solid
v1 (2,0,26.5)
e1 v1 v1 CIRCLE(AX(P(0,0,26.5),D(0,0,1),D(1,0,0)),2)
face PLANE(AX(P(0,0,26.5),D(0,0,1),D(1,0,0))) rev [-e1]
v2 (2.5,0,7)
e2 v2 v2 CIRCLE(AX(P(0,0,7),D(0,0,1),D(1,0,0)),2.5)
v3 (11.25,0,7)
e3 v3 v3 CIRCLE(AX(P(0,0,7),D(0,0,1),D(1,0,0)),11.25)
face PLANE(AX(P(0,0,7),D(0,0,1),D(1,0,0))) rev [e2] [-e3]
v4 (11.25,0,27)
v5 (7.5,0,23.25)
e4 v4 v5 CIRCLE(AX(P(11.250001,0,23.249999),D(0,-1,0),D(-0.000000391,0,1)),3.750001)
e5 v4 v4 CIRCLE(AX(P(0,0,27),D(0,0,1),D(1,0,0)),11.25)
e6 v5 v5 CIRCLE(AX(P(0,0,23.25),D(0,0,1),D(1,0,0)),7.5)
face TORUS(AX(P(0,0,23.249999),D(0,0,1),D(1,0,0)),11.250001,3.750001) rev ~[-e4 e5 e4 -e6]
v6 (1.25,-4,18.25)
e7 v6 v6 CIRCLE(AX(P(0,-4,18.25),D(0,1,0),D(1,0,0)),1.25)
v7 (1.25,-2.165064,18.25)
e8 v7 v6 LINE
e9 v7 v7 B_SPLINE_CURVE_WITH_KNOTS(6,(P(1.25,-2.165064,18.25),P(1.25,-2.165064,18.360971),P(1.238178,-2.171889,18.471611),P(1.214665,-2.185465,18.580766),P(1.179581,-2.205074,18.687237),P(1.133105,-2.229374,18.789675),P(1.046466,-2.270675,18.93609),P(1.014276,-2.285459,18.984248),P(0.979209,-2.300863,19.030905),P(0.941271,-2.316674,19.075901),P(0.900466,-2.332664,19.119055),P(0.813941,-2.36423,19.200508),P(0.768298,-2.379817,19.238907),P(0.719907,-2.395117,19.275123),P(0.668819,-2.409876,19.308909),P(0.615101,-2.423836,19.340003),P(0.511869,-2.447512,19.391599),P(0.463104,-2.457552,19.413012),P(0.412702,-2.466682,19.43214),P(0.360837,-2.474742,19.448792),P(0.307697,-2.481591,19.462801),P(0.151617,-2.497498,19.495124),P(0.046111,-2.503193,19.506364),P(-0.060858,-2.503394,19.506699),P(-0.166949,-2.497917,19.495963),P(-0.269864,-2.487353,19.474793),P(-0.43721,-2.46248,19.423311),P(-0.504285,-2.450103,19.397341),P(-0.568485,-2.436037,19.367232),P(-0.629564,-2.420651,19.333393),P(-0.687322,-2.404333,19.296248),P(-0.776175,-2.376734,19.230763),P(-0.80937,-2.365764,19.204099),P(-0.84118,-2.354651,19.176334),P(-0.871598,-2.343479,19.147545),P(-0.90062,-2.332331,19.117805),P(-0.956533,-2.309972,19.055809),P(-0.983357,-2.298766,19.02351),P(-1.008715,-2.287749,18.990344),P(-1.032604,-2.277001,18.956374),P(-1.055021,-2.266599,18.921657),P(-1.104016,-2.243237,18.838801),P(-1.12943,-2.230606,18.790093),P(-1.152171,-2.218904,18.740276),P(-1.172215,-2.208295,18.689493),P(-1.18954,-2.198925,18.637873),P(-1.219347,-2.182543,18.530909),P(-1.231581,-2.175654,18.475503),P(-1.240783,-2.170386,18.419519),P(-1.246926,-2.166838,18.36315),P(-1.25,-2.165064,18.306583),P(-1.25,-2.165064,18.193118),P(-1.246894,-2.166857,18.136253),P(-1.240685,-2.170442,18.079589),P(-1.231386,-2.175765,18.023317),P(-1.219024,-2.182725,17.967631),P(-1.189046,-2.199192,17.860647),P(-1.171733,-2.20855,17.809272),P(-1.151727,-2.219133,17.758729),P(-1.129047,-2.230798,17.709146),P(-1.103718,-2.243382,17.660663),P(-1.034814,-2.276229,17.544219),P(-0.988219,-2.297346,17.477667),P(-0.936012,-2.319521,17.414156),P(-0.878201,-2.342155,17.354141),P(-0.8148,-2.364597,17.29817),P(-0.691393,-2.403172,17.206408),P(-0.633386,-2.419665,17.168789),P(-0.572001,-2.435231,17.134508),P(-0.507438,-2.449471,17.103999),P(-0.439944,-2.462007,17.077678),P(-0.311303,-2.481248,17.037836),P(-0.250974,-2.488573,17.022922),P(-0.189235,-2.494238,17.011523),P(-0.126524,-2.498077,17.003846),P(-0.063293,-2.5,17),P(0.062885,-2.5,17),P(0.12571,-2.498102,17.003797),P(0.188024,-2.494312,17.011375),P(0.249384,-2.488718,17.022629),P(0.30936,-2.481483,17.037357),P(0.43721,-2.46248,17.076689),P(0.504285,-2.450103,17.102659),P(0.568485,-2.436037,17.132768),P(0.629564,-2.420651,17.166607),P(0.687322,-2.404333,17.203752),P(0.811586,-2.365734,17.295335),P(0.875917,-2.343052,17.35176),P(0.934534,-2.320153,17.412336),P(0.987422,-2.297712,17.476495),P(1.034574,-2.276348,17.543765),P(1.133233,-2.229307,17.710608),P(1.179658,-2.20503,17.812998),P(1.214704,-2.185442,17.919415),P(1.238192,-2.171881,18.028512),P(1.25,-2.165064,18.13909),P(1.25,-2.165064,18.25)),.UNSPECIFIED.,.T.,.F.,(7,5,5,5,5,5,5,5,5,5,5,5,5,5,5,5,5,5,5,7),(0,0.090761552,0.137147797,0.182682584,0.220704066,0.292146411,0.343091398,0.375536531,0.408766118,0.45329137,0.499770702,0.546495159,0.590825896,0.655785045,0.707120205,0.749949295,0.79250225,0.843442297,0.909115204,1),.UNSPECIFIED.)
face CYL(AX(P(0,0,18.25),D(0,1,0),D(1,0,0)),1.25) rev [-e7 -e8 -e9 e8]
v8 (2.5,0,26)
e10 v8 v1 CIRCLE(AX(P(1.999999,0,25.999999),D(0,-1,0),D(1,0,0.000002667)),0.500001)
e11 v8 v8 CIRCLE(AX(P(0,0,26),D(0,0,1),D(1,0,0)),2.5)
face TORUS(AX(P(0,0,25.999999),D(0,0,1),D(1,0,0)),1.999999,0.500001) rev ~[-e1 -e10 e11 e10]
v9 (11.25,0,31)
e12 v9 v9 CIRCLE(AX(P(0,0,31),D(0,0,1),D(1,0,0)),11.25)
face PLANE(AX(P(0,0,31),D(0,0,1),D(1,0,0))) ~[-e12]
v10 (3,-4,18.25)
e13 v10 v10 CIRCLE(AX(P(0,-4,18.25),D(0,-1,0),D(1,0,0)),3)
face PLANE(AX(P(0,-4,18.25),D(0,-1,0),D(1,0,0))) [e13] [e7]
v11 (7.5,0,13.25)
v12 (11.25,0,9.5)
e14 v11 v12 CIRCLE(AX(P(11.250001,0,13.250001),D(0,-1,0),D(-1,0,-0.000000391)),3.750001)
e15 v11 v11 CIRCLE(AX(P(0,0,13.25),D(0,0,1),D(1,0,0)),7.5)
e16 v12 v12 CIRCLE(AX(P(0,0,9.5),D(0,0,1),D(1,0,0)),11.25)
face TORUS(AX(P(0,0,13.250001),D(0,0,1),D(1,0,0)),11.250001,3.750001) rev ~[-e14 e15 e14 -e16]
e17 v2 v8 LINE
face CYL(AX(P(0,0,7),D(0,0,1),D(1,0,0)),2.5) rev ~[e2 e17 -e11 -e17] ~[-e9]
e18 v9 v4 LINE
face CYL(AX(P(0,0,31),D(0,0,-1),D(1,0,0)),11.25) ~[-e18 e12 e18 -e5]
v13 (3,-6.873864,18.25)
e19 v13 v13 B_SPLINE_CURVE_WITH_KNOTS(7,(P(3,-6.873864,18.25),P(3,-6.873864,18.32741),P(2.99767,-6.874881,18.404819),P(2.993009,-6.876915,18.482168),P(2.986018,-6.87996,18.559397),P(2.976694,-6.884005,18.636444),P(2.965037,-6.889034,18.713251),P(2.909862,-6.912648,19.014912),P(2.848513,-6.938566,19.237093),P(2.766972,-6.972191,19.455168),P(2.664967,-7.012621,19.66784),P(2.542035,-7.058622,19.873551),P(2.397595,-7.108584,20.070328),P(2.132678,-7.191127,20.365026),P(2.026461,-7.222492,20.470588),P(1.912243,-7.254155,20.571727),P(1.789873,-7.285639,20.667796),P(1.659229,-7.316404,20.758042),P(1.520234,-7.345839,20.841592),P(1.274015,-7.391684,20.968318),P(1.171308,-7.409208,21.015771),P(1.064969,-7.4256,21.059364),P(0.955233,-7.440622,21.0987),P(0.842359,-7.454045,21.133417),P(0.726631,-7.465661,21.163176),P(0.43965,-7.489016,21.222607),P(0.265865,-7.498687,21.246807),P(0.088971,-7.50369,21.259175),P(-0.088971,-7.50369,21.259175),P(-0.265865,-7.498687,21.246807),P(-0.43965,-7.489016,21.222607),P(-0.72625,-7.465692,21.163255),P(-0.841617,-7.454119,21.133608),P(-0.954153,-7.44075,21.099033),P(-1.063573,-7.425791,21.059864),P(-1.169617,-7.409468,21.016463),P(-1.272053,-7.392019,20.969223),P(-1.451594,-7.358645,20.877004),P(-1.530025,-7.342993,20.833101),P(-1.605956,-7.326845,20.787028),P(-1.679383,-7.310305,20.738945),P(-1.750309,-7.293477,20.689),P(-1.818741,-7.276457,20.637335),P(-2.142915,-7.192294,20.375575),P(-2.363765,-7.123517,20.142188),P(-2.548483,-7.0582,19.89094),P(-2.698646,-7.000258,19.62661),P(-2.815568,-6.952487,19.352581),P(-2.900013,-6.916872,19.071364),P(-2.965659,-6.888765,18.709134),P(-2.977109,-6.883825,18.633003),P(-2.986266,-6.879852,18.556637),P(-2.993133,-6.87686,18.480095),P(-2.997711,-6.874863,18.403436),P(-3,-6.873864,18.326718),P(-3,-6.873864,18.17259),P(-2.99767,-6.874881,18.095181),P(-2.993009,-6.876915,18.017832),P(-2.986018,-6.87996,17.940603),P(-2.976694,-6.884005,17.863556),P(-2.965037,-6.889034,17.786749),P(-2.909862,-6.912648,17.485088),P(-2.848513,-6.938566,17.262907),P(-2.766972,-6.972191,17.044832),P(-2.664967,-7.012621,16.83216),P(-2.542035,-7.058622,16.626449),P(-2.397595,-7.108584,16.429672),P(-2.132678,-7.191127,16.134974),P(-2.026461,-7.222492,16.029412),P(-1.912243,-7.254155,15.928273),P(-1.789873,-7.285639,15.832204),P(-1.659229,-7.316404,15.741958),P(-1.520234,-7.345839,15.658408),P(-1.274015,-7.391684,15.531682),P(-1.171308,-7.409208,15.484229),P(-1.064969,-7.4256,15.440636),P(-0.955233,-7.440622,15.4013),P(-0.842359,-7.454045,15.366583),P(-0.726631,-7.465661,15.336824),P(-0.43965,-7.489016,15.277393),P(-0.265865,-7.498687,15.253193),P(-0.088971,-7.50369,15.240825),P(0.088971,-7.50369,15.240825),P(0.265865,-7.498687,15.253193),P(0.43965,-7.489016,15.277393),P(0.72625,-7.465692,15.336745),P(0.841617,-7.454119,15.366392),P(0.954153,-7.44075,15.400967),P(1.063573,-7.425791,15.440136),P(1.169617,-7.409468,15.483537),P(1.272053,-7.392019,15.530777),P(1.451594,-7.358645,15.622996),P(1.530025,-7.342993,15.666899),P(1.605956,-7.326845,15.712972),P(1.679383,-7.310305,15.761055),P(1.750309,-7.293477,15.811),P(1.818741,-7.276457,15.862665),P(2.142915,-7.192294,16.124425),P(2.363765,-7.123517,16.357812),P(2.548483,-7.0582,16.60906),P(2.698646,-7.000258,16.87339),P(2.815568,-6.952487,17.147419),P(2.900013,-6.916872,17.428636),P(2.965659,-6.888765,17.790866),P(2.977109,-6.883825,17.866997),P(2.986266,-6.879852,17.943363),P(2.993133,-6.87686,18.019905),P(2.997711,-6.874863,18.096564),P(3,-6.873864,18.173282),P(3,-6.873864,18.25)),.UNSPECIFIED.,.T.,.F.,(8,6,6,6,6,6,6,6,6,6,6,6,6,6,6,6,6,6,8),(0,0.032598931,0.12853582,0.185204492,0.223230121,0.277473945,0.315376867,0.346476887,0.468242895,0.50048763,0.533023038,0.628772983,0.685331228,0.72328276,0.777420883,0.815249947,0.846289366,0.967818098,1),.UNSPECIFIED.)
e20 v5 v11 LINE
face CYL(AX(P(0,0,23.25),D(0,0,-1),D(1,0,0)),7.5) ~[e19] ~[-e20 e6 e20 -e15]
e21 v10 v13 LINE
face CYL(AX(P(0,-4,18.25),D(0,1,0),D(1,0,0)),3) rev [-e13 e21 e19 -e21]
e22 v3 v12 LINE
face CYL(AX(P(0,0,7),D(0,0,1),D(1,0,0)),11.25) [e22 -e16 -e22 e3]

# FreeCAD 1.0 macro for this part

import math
import FreeCAD as App
import Part
import Sketcher

doc = App.newDocument("Part")
body = doc.addObject("PartDesign::Body", "Body")

# Sketch on XZ plane
sketch1 = body.newObject("Sketcher::SketchObject", "Sketch")
sketch1.AttachmentSupport = (doc.getObject("XZ_Plane"), [""])
sketch1.MapMode = "FlatFace"
sketch1.AttachmentOffset = App.Placement(App.Vector(0, 0, 4), App.Rotation())
sketch1.addGeometry(Part.Circle(App.Vector(0, 18.2, 0), App.Vector(0, 0, 1), 3), False)
sketch1.addConstraint([
    Sketcher.Constraint("PointOnObject", 0, 3, -2),
    Sketcher.Constraint("Diameter", 0, 6.0),
    Sketcher.Constraint("DistanceY", -1, 1, 0, 3, 18.25),
])
pad1 = body.newObject("PartDesign::Pad", "Pad")
pad1.Profile = sketch1
pad1.Length = 3.5
body2 = doc.addObject("PartDesign::Body", "Body001")

# Sketch on XZ plane
sketch2 = body2.newObject("Sketcher::SketchObject", "Sketch001")
sketch2.AttachmentSupport = (doc.getObject("XZ_Plane001"), [""])
sketch2.MapMode = "FlatFace"
sketch2.addGeometry(Part.Circle(App.Vector(0, 18.2, 0), App.Vector(0, 0, 1), 1.2), False)
sketch2.addConstraint([
    Sketcher.Constraint("PointOnObject", 0, 3, -2),
    Sketcher.Constraint("Diameter", 0, 2.5),
    Sketcher.Constraint("DistanceY", -1, 1, 0, 3, 18.25),
])
pad2 = body2.newObject("PartDesign::Pad", "Pad001")
pad2.Profile = sketch2
pad2.Length = 10
doc.recompute()

boolean = body2.newObject("PartDesign::Boolean", "Boolean")
boolean.Type = "Fuse"
boolean.addObjects([body])
body3 = doc.addObject("PartDesign::Body", "Body002")

# Sketch on XZ plane
sketch3 = body3.newObject("Sketcher::SketchObject", "Sketch002")
sketch3.AttachmentSupport = (doc.getObject("XZ_Plane002"), [""])
sketch3.MapMode = "FlatFace"
sketch3.addGeometry([
    Part.LineSegment(App.Vector(2.5, 26, 0), App.Vector(2.5, 7, 0)),  # 0
    Part.LineSegment(App.Vector(2.5, 7, 0), App.Vector(11.2, 7, 0)),  # 1
    Part.LineSegment(App.Vector(11.2, 7, 0), App.Vector(11.2, 9.5, 0)),  # 2
    Part.ArcOfCircle(Part.Circle(App.Vector(11.3, 13.3, 0), App.Vector(0, 0, 1), 3.8), math.radians(-180), math.radians(-90)),  # 3
    Part.LineSegment(App.Vector(7.5, 13.2, 0), App.Vector(7.5, 23.2, 0)),  # 4
    Part.ArcOfCircle(Part.Circle(App.Vector(11.3, 23.2, 0), App.Vector(0, 0, 1), 3.8), math.radians(90), math.radians(180)),  # 5
    Part.LineSegment(App.Vector(11.2, 27, 0), App.Vector(11.2, 31, 0)),  # 6
    Part.LineSegment(App.Vector(11.2, 31, 0), App.Vector(0, 31, 0)),  # 7
    Part.LineSegment(App.Vector(0, 31, 0), App.Vector(0, 26.5, 0)),  # 8
    Part.LineSegment(App.Vector(0, 26.5, 0), App.Vector(2, 26.5, 0)),  # 9
    Part.ArcOfCircle(Part.Circle(App.Vector(2, 26, 0), App.Vector(0, 0, 1), 0.5), math.radians(0), math.radians(90)),  # 10
], False)
sketch3.addConstraint([
    Sketcher.Constraint("Coincident", 0, 2, 1, 1),
    Sketcher.Constraint("Coincident", 1, 2, 2, 1),
    Sketcher.Constraint("Coincident", 2, 2, 3, 2),
    Sketcher.Constraint("Tangent", 3, 1, 4, 1),
    Sketcher.Constraint("Tangent", 4, 2, 5, 2),
    Sketcher.Constraint("Coincident", 5, 1, 6, 1),
    Sketcher.Constraint("Coincident", 6, 2, 7, 1),
    Sketcher.Constraint("Coincident", 7, 2, 8, 1),
    Sketcher.Constraint("Coincident", 8, 2, 9, 1),
    Sketcher.Constraint("Coincident", 9, 2, 10, 2),
    Sketcher.Constraint("Coincident", 10, 1, 0, 1),
    Sketcher.Constraint("Vertical", 0),
    Sketcher.Constraint("Horizontal", 1),
    Sketcher.Constraint("Vertical", 2),
    Sketcher.Constraint("Vertical", 4),
    Sketcher.Constraint("Vertical", 6),
    Sketcher.Constraint("Horizontal", 7),
    Sketcher.Constraint("Vertical", 8),
    Sketcher.Constraint("Horizontal", 9),
    Sketcher.Constraint("Equal", 3, 5),
    Sketcher.Constraint("PointOnObject", 7, 2, -2),
    Sketcher.Constraint("Vertical", 5, 3, 1, 2),
    Sketcher.Constraint("Vertical", 2, 2, 5, 1),
    Sketcher.Constraint("Vertical", 10, 3, 9, 2),
    Sketcher.Constraint("Radius", 10, 0.500001),
    Sketcher.Constraint("DistanceX", 9, 1, 9, 2, 2.0),
    Sketcher.Constraint("DistanceY", 0, 2, 0, 1, 19.0),
    Sketcher.Constraint("DistanceY", 4, 1, 4, 2, 10.0),
    Sketcher.Constraint("DistanceY", 6, 1, 6, 2, 4.0),
    Sketcher.Constraint("Radius", 3, 3.750001),
    Sketcher.Constraint("DistanceY", 2, 1, 2, 2, 2.5),
    Sketcher.Constraint("DistanceY", 8, 2, 8, 1, 4.5),
    Sketcher.Constraint("DistanceY", -1, 1, 10, 3, 25.999999),
    Sketcher.Constraint("DistanceX", 0, 2, 3, 1, 5.0),
])
revolution = body3.newObject("PartDesign::Revolution", "Revolution")
revolution.Profile = sketch3
revolution.ReferenceAxis = (sketch3, ["V_Axis"])
revolution.Angle = 360
doc.recompute()

boolean2 = body3.newObject("PartDesign::Boolean", "Boolean001")
boolean2.Type = "Cut"
boolean2.addObjects([body2])

doc.recompute()
